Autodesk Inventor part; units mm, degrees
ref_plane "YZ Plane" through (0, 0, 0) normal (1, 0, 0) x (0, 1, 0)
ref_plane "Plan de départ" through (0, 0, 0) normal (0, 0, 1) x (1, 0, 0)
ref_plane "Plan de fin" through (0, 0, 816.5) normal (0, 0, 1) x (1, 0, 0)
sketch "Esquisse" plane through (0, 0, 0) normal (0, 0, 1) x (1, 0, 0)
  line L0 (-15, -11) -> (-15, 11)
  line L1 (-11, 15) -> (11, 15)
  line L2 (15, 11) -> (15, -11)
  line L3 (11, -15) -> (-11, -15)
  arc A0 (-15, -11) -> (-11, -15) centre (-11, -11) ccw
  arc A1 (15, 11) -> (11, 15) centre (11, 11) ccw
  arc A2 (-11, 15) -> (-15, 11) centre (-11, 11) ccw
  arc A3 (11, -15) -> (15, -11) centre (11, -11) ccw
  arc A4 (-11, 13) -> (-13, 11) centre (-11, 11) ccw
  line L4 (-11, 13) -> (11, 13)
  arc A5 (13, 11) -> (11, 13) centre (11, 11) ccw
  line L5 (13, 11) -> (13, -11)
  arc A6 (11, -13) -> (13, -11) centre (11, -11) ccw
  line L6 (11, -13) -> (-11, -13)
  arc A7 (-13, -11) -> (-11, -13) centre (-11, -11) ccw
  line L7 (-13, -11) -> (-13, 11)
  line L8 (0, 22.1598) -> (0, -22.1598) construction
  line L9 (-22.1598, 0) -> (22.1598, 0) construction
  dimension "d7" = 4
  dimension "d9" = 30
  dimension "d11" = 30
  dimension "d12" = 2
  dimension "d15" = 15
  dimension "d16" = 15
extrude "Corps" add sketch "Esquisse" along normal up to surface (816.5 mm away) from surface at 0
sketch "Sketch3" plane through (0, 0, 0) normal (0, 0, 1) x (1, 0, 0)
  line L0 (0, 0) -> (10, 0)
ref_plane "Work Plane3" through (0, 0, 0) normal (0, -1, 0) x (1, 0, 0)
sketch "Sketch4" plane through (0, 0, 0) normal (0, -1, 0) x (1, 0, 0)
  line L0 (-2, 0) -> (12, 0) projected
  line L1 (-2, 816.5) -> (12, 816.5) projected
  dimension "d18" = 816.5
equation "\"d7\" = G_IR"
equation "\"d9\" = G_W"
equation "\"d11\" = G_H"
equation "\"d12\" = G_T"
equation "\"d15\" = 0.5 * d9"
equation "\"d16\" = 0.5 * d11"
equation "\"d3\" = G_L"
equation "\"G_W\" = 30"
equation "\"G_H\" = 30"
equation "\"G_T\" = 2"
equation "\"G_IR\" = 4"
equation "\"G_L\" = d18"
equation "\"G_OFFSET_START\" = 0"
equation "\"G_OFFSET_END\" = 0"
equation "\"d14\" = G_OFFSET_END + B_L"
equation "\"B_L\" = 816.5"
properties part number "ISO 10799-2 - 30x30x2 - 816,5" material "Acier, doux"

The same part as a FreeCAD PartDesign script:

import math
import FreeCAD as App
import Part
import Sketcher
from FreeCAD import Vector

doc = App.newDocument("Part")
body = doc.addObject("PartDesign::Body", "Body")

sketch1 = body.newObject("Sketcher::SketchObject", "Sketch")
sketch1.AttachmentSupport = (doc.getObject("XY_Plane"), [""])
sketch1.MapMode = "FlatFace"
sketch1.addGeometry([
    Part.LineSegment(Vector(-15, 11, 0), Vector(-15, -11, 0)),
    Part.ArcOfCircle(Part.Circle(Vector(-11, -11, 0), Vector(0, 0, 1), 4), math.radians(180), math.radians(270)),
    Part.LineSegment(Vector(-11, -15, 0), Vector(11, -15, 0)),
    Part.ArcOfCircle(Part.Circle(Vector(11, -11, 0), Vector(0, 0, 1), 4), math.radians(-90), math.radians(0)),
    Part.LineSegment(Vector(15, -11, 0), Vector(15, 11, 0)),
    Part.ArcOfCircle(Part.Circle(Vector(11, 11, 0), Vector(0, 0, 1), 4), math.radians(0), math.radians(90)),
    Part.LineSegment(Vector(11, 15, 0), Vector(-11, 15, 0)),
    Part.ArcOfCircle(Part.Circle(Vector(-11, 11, 0), Vector(0, 0, 1), 4), math.radians(90), math.radians(180)),
    Part.ArcOfCircle(Part.Circle(Vector(-11, 11, 0), Vector(0, 0, 1), 2), math.radians(90), math.radians(180)),
    Part.LineSegment(Vector(-11, 13, 0), Vector(11, 13, 0)),
    Part.ArcOfCircle(Part.Circle(Vector(11, 11, 0), Vector(0, 0, 1), 2), math.radians(0), math.radians(90)),
    Part.LineSegment(Vector(13, 11, 0), Vector(13, -11, 0)),
    Part.ArcOfCircle(Part.Circle(Vector(11, -11, 0), Vector(0, 0, 1), 2), math.radians(-90), math.radians(0)),
    Part.LineSegment(Vector(11, -13, 0), Vector(-11, -13, 0)),
    Part.ArcOfCircle(Part.Circle(Vector(-11, -11, 0), Vector(0, 0, 1), 2), math.radians(180), math.radians(270)),
    Part.LineSegment(Vector(-13, -11, 0), Vector(-13, 11, 0)),
], False)
sketch1.addConstraint([
    Sketcher.Constraint("Tangent", 0, 2, 1, 1),
    Sketcher.Constraint("Tangent", 1, 2, 2, 1),
    Sketcher.Constraint("Tangent", 2, 2, 3, 1),
    Sketcher.Constraint("Tangent", 3, 2, 4, 1),
    Sketcher.Constraint("Tangent", 4, 2, 5, 1),
    Sketcher.Constraint("Tangent", 5, 2, 6, 1),
    Sketcher.Constraint("Tangent", 6, 2, 7, 1),
    Sketcher.Constraint("Tangent", 7, 2, 0, 1),
    Sketcher.Constraint("Tangent", 8, 1, 9, 1),
    Sketcher.Constraint("Tangent", 9, 2, 10, 2),
    Sketcher.Constraint("Tangent", 10, 1, 11, 1),
    Sketcher.Constraint("Tangent", 11, 2, 12, 2),
    Sketcher.Constraint("Tangent", 12, 1, 13, 1),
    Sketcher.Constraint("Tangent", 13, 2, 14, 2),
    Sketcher.Constraint("Tangent", 14, 1, 15, 1),
    Sketcher.Constraint("Tangent", 15, 2, 8, 2),
    Sketcher.Constraint("Vertical", 0),
    Sketcher.Constraint("Horizontal", 2),
    Sketcher.Constraint("Vertical", 4),
    Sketcher.Constraint("Horizontal", 6),
    Sketcher.Constraint("Horizontal", 9),
    Sketcher.Constraint("Vertical", 11),
    Sketcher.Constraint("Horizontal", 13),
    Sketcher.Constraint("Vertical", 15),
    Sketcher.Constraint("Coincident", 8, 3, 7, 3),
    Sketcher.Constraint("Coincident", 10, 3, 5, 3),
    Sketcher.Constraint("Coincident", 12, 3, 3, 3),
    Sketcher.Constraint("Equal", 1, 3),
    Sketcher.Constraint("Equal", 3, 5),
    Sketcher.Constraint("Equal", 5, 7),
    Sketcher.Constraint("Equal", 12, 14),
    Sketcher.Constraint("Symmetric", 1, 3, 5, 3, -1, 1),
    Sketcher.Constraint("Equal", 13, 0),
    Sketcher.Constraint("Radius", 1, 4.0),
    Sketcher.Constraint("Radius", 8, 2.0),
    Sketcher.Constraint("DistanceX", 0, 2, -1, 1, 15.0),
])
pad1 = body.newObject("PartDesign::Pad", "Pad")
pad1.Profile = sketch1
pad1.Length = 816.5

doc.recompute()
